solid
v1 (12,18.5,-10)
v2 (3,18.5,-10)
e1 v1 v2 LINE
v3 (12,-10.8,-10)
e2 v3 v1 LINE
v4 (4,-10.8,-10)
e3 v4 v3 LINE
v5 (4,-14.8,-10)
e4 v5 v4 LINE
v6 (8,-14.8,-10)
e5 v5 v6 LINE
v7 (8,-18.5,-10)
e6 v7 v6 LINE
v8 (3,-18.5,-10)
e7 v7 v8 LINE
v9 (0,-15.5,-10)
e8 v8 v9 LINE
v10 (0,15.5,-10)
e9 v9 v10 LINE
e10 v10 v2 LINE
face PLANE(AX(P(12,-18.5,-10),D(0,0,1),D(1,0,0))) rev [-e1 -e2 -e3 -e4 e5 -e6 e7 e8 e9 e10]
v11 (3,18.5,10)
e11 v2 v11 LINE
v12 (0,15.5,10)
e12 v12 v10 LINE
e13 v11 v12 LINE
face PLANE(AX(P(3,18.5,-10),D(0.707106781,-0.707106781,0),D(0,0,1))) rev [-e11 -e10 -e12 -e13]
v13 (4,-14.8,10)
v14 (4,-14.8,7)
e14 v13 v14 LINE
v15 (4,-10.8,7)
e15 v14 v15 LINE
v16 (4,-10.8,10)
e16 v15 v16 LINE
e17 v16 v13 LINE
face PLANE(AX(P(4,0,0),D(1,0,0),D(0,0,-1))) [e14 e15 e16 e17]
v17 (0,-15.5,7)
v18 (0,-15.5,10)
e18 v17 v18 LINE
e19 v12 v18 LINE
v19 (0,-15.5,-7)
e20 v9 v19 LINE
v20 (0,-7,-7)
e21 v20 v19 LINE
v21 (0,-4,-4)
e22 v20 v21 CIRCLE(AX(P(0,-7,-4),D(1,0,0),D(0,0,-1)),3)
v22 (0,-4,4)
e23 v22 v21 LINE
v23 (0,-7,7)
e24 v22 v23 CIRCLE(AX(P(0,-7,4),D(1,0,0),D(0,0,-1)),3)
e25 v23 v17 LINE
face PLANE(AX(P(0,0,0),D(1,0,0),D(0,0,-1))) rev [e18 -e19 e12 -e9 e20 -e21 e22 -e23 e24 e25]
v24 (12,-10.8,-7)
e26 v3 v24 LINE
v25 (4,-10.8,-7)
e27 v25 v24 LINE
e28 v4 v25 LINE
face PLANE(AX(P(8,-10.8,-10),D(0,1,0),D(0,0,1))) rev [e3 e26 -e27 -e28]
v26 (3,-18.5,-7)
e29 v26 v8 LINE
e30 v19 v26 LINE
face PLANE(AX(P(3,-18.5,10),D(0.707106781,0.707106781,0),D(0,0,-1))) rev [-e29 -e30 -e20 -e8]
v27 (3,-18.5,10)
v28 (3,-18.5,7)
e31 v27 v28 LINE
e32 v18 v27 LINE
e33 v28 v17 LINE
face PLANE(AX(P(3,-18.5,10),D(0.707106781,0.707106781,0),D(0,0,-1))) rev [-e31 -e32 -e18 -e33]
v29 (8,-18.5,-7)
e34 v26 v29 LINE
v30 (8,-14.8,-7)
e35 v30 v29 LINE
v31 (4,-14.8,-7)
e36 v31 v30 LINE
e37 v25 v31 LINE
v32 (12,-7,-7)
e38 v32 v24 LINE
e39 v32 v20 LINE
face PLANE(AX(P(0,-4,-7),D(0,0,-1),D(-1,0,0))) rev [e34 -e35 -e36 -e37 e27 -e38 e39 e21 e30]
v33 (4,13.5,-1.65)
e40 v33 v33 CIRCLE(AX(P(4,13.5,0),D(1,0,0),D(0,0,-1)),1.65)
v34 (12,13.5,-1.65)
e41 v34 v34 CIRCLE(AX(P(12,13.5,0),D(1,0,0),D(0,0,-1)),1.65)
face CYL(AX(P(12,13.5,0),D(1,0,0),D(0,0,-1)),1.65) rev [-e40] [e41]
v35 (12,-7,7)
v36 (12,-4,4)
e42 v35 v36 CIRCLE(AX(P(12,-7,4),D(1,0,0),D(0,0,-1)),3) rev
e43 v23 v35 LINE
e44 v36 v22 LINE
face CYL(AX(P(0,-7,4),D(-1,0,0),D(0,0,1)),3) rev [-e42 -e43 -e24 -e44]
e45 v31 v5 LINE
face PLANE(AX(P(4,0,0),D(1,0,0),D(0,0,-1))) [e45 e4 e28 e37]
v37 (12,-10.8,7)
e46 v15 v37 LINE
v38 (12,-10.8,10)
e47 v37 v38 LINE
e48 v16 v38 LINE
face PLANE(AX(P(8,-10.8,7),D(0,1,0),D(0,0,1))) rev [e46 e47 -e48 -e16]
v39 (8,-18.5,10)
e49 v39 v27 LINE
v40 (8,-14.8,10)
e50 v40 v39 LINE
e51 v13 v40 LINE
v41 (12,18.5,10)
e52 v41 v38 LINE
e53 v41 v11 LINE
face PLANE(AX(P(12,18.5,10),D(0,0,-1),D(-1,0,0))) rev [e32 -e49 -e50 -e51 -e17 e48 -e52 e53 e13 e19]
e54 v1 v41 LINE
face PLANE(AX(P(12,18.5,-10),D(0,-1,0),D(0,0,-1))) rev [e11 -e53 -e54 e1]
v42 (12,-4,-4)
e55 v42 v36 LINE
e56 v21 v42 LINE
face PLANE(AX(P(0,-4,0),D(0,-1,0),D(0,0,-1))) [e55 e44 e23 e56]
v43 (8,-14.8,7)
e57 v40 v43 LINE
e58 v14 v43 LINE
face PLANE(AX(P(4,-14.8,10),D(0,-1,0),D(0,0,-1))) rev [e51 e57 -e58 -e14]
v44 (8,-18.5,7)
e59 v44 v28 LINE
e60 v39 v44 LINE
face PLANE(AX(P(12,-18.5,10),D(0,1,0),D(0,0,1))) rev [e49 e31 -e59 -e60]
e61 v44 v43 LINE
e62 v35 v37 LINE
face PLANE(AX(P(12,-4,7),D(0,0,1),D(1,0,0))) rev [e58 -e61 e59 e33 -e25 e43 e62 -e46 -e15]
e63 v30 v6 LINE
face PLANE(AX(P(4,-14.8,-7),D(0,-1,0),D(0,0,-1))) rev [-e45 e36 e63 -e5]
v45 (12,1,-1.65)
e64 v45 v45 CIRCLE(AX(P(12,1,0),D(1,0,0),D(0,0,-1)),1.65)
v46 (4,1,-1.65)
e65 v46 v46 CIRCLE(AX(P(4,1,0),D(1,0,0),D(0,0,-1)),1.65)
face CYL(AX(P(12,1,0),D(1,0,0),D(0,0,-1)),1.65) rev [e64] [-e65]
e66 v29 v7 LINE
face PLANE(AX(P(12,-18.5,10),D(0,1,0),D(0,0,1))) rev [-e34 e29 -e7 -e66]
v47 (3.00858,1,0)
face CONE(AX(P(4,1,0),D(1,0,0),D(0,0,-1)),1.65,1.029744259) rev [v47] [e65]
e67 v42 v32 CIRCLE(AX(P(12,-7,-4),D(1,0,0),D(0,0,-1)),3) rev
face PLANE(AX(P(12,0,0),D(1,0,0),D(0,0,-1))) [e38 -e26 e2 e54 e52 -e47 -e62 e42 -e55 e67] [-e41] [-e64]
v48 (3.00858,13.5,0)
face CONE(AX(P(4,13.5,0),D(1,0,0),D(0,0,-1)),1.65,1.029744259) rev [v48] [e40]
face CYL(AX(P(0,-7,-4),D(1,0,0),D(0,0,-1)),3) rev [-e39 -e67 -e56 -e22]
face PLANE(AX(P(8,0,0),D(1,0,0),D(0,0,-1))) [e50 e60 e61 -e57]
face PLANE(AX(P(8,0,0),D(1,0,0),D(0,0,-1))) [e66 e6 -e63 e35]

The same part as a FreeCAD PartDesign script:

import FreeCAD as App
import Part
import Sketcher

V = App.Vector
Q = App.Units.Quantity


def edges_at(feature, points):
    """Names of the edges that pass closest to the given points."""
    edges = feature.Shape.Edges
    near = lambda p: min(range(len(edges)), key=lambda i: edges[i].distToShape(Part.Vertex(*p))[0])
    return sorted({f"Edge{near(p) + 1}" for p in points})

doc = App.newDocument("Part")
body = doc.addObject("PartDesign::Body", "Body")

# Sketch on YZ plane
sketch1 = body.newObject("Sketcher::SketchObject", "Sketch")
sketch1.AttachmentSupport = (doc.getObject("YZ_Plane"), [""])
sketch1.MapMode = "FlatFace"
sketch1.addGeometry([
    Part.LineSegment(V(18, 10, 0), V(-18, 10, 0)),
    Part.LineSegment(V(-18, 10, 0), V(-18, -10, 0)),
    Part.LineSegment(V(-18, -10, 0), V(18, -10, 0)),
    Part.LineSegment(V(18, -10, 0), V(18, 10, 0)),
], False)
sketch1.addConstraint([
    Sketcher.Constraint("Coincident", 0, 2, 1, 1),
    Sketcher.Constraint("Coincident", 1, 2, 2, 1),
    Sketcher.Constraint("Coincident", 2, 2, 3, 1),
    Sketcher.Constraint("Coincident", 3, 2, 0, 1),
    Sketcher.Constraint("Horizontal", 0),
    Sketcher.Constraint("Vertical", 1),
    Sketcher.Constraint("Horizontal", 2),
    Sketcher.Constraint("Vertical", 3),
    Sketcher.Constraint("Symmetric", 0, 2, 2, 2, -1, 1),
    Sketcher.Constraint("DistanceX", 0, 2, 0, 1, Q("37 mm")),
    Sketcher.Constraint("DistanceY", 1, 2, 1, 1, Q("20 mm")),
])
pad1 = body.newObject("PartDesign::Pad", "Pad")
pad1.Profile = sketch1
pad1.Length = 12

# Sketch on XZ plane
sketch2 = body.newObject("Sketcher::SketchObject", "Sketch001")
sketch2.AttachmentSupport = (doc.getObject("XZ_Plane"), [""])
sketch2.MapMode = "FlatFace"
sketch2.AttachmentOffset = App.Placement(V(0, 0, 18.5), App.Rotation())
sketch2.addGeometry([
    Part.LineSegment(V(0, 7, 0), V(0, -7, 0)),
    Part.LineSegment(V(0, -7, 0), V(12, -7, 0)),
    Part.LineSegment(V(12, -7, 0), V(12, 7, 0)),
    Part.LineSegment(V(12, 7, 0), V(0, 7, 0)),
], False)
sketch2.addConstraint([
    Sketcher.Constraint("Coincident", 0, 2, 1, 1),
    Sketcher.Constraint("Coincident", 1, 2, 2, 1),
    Sketcher.Constraint("Coincident", 2, 2, 3, 1),
    Sketcher.Constraint("Coincident", 3, 2, 0, 1),
    Sketcher.Constraint("Vertical", 0),
    Sketcher.Constraint("Horizontal", 1),
    Sketcher.Constraint("Vertical", 2),
    Sketcher.Constraint("Horizontal", 3),
    Sketcher.Constraint("Symmetric", 0, 2, 3, 2, -1, 1),
    Sketcher.Constraint("DistanceX", 1, 1, 1, 2, Q("12 mm")),
    Sketcher.Constraint("DistanceY", 0, 2, 0, 1, Q("14 mm")),
])
pocket1 = body.newObject("PartDesign::Pocket", "Pocket")
pocket1.Profile = sketch2
pocket1.Length = 14.5
doc.recompute()

chamfer = body.newObject("PartDesign::Chamfer", "Chamfer")
chamfer.Base = (pocket1, edges_at(pocket1, [(0, -18.5, -8.5), (0, 18.5, 0), (0, -18.5, 8.5)]))
chamfer.Size = 3
doc.recompute()

fillet = body.newObject("PartDesign::Fillet", "Fillet")
fillet.Base = (chamfer, edges_at(chamfer, [(6, -4, -7), (6, -4, 7)]))
fillet.Radius = 3

# Sketch on YZ plane
sketch3 = body.newObject("Sketcher::SketchObject", "Sketch002")
sketch3.AttachmentSupport = (doc.getObject("YZ_Plane"), [""])
sketch3.MapMode = "FlatFace"
sketch3.AttachmentOffset = App.Placement(V(0, 0, 12), App.Rotation())
sketch3.addGeometry([
    Part.LineSegment(V(-10.8, 10, 0), V(-18.5, 10, 0)),  # 0
    Part.LineSegment(V(-18.5, 10, 0), V(-18.5, 7, 0)),  # 1
    Part.LineSegment(V(-18.5, 7, 0), V(-10.8, 7, 0)),  # 2
    Part.LineSegment(V(-10.8, 7, 0), V(-10.8, 10, 0)),  # 3
    Part.LineSegment(V(-10.8, -7, 0), V(-18.5, -7, 0)),  # 4
    Part.LineSegment(V(-18.5, -7, 0), V(-18.5, -10, 0)),  # 5
    Part.LineSegment(V(-18.5, -10, 0), V(-10.8, -10, 0)),  # 6
    Part.LineSegment(V(-10.8, -10, 0), V(-10.8, -7, 0)),  # 7
], False)
sketch3.addConstraint([
    Sketcher.Constraint("Coincident", 0, 2, 1, 1),
    Sketcher.Constraint("Coincident", 1, 2, 2, 1),
    Sketcher.Constraint("Coincident", 2, 2, 3, 1),
    Sketcher.Constraint("Coincident", 3, 2, 0, 1),
    Sketcher.Constraint("Coincident", 4, 2, 5, 1),
    Sketcher.Constraint("Coincident", 5, 2, 6, 1),
    Sketcher.Constraint("Coincident", 6, 2, 7, 1),
    Sketcher.Constraint("Coincident", 7, 2, 4, 1),
    Sketcher.Constraint("Horizontal", 0),
    Sketcher.Constraint("Vertical", 1),
    Sketcher.Constraint("Horizontal", 2),
    Sketcher.Constraint("Vertical", 3),
    Sketcher.Constraint("Horizontal", 4),
    Sketcher.Constraint("Vertical", 5),
    Sketcher.Constraint("Horizontal", 6),
    Sketcher.Constraint("Vertical", 7),
    Sketcher.Constraint("Symmetric", 1, 2, 4, 2, -1),
    Sketcher.Constraint("Symmetric", 3, 2, 6, 2, -1),
    Sketcher.Constraint("DistanceY", 1, 2, 1, 1, Q("3 mm")),
    Sketcher.Constraint("DistanceX", 0, 2, 0, 1, Q("7.7 mm")),
    Sketcher.Constraint("DistanceY", -1, 1, 0, 2, Q("10 mm")),
    Sketcher.Constraint("DistanceX", 0, 2, -1, 1, Q("18.5 mm")),
])
pocket2 = body.newObject("PartDesign::Pocket", "Pocket001")
pocket2.Profile = sketch3
pocket2.Length = 4

# Sketch on YZ plane
sketch4 = body.newObject("Sketcher::SketchObject", "Sketch003")
sketch4.AttachmentSupport = (doc.getObject("YZ_Plane"), [""])
sketch4.MapMode = "FlatFace"
sketch4.AttachmentOffset = App.Placement(V(0, 0, 8), App.Rotation())
sketch4.addGeometry([
    Part.LineSegment(V(-10.8, 10, 0), V(-14.8, 10, 0)),  # 0
    Part.LineSegment(V(-14.8, 10, 0), V(-14.8, 7, 0)),  # 1
    Part.LineSegment(V(-14.8, 7, 0), V(-10.8, 7, 0)),  # 2
    Part.LineSegment(V(-10.8, 7, 0), V(-10.8, 10, 0)),  # 3
    Part.LineSegment(V(-10.8, -7, 0), V(-14.8, -7, 0)),  # 4
    Part.LineSegment(V(-14.8, -7, 0), V(-14.8, -10, 0)),  # 5
    Part.LineSegment(V(-14.8, -10, 0), V(-10.8, -10, 0)),  # 6
    Part.LineSegment(V(-10.8, -10, 0), V(-10.8, -7, 0)),  # 7
], False)
sketch4.addConstraint([
    Sketcher.Constraint("Coincident", 0, 2, 1, 1),
    Sketcher.Constraint("Coincident", 1, 2, 2, 1),
    Sketcher.Constraint("Coincident", 2, 2, 3, 1),
    Sketcher.Constraint("Coincident", 3, 2, 0, 1),
    Sketcher.Constraint("Coincident", 4, 2, 5, 1),
    Sketcher.Constraint("Coincident", 5, 2, 6, 1),
    Sketcher.Constraint("Coincident", 6, 2, 7, 1),
    Sketcher.Constraint("Coincident", 7, 2, 4, 1),
    Sketcher.Constraint("Horizontal", 0),
    Sketcher.Constraint("Vertical", 1),
    Sketcher.Constraint("Horizontal", 2),
    Sketcher.Constraint("Vertical", 3),
    Sketcher.Constraint("Horizontal", 4),
    Sketcher.Constraint("Vertical", 5),
    Sketcher.Constraint("Horizontal", 6),
    Sketcher.Constraint("Vertical", 7),
    Sketcher.Constraint("Symmetric", 1, 2, 4, 2, -1),
    Sketcher.Constraint("Symmetric", 3, 2, 6, 2, -1),
    Sketcher.Constraint("DistanceX", 0, 2, 0, 1, Q("4 mm")),
    Sketcher.Constraint("DistanceY", 1, 2, 1, 1, Q("3 mm")),
    Sketcher.Constraint("DistanceY", -1, 1, 0, 2, Q("10 mm")),
    Sketcher.Constraint("DistanceX", 0, 2, -1, 1, Q("14.8 mm")),
])
pocket3 = body.newObject("PartDesign::Pocket", "Pocket002")
pocket3.Profile = sketch4
pocket3.Length = 4

# Sketch on YZ plane
sketch5 = body.newObject("Sketcher::SketchObject", "Sketch004")
sketch5.AttachmentSupport = (doc.getObject("YZ_Plane"), [""])
sketch5.MapMode = "FlatFace"
sketch5.AttachmentOffset = App.Placement(V(0, 0, 12), App.Rotation())
sketch5.addGeometry([
    Part.Circle(V(1, 0, 0), V(0, 0, 1), 1.6),
    Part.Circle(V(13.5, 0, 0), V(0, 0, 1), 1.6),
], False)
sketch5.addConstraint([
    Sketcher.Constraint("Equal", 0, 1),
    Sketcher.Constraint("PointOnObject", 0, 3, -1),
    Sketcher.Constraint("PointOnObject", 1, 3, -1),
    Sketcher.Constraint("Diameter", 0, Q("3.3 mm")),
    Sketcher.Constraint("DistanceX", -1, 1, 0, 3, Q("1 mm")),
    Sketcher.Constraint("DistanceX", -1, 1, 1, 3, Q("13.5 mm")),
])
doc.recompute()
hole = body.newObject("PartDesign::Hole", "Hole")
hole.Profile = sketch5
hole.ThreadType = "None"
hole.Diameter = 3.3
hole.DepthType = "Dimension"
hole.Depth = 8
hole.DrillPoint = "Angled"
hole.DrillPointAngle = 118

doc.recompute()
